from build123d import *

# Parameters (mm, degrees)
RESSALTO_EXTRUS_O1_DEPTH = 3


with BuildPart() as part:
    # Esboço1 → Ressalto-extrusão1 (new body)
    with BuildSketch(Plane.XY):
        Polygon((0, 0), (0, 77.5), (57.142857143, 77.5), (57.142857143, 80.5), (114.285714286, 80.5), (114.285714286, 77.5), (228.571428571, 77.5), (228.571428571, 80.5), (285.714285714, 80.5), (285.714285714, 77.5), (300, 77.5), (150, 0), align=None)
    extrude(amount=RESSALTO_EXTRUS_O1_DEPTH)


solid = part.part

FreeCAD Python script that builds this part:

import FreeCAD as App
import Part
import Sketcher
from FreeCAD import Vector

doc = App.newDocument("Part")
params = doc.addObject("Spreadsheet::Sheet", "Params")
for row, (alias, value) in enumerate([
    ("sketch1_width", "150 mm"),
    ("sketch1_height", "3 mm"),
    ("sketch1_height2", "77.5 mm"),
    ("pad1_length", "3 mm"),
], start=1):
    params.set(f"A{row}", alias)
    params.set(f"B{row}", "=" + value)
    params.setAlias(f"B{row}", alias)

body = doc.addObject("PartDesign::Body", "Body")

# Sketch on XY plane
sketch1 = body.newObject("Sketcher::SketchObject", "Sketch")
sketch1.AttachmentSupport = (doc.getObject("XY_Plane"), [""])
sketch1.MapMode = "FlatFace"
sketch1.addGeometry(Part.LineSegment(Vector(0, 77.5, 0), Vector(0, 0, 0)), False)
sketch1.addGeometry(Part.LineSegment(Vector(0, 0, 0), Vector(150, 0, 0)), False)
sketch1.addGeometry(Part.LineSegment(Vector(150, 0, 0), Vector(300, 77.5, 0)), False)
sketch1.addGeometry(Part.LineSegment(Vector(300, 77.5, 0), Vector(285.7, 77.5, 0)), False)
sketch1.addGeometry(Part.LineSegment(Vector(285.7, 77.5, 0), Vector(285.7, 80.5, 0)), False)
sketch1.addGeometry(Part.LineSegment(Vector(285.7, 80.5, 0), Vector(228.6, 80.5, 0)), False)
sketch1.addGeometry(Part.LineSegment(Vector(228.6, 80.5, 0), Vector(228.6, 77.5, 0)), False)
sketch1.addGeometry(Part.LineSegment(Vector(228.6, 77.5, 0), Vector(114.3, 77.5, 0)), False)
sketch1.addGeometry(Part.LineSegment(Vector(114.3, 77.5, 0), Vector(114.3, 80.5, 0)), False)
sketch1.addGeometry(Part.LineSegment(Vector(114.3, 80.5, 0), Vector(57.1, 80.5, 0)), False)
sketch1.addGeometry(Part.LineSegment(Vector(57.1, 80.5, 0), Vector(57.1, 77.5, 0)), False)
sketch1.addGeometry(Part.LineSegment(Vector(57.1, 77.5, 0), Vector(0, 77.5, 0)), False)
sketch1.addConstraint(Sketcher.Constraint("Coincident", 0, 2, 1, 1))
sketch1.addConstraint(Sketcher.Constraint("Coincident", 1, 2, 2, 1))
sketch1.addConstraint(Sketcher.Constraint("Coincident", 2, 2, 3, 1))
sketch1.addConstraint(Sketcher.Constraint("Coincident", 3, 2, 4, 1))
sketch1.addConstraint(Sketcher.Constraint("Coincident", 4, 2, 5, 1))
sketch1.addConstraint(Sketcher.Constraint("Coincident", 5, 2, 6, 1))
sketch1.addConstraint(Sketcher.Constraint("Coincident", 6, 2, 7, 1))
sketch1.addConstraint(Sketcher.Constraint("Coincident", 7, 2, 8, 1))
sketch1.addConstraint(Sketcher.Constraint("Coincident", 8, 2, 9, 1))
sketch1.addConstraint(Sketcher.Constraint("Coincident", 9, 2, 10, 1))
sketch1.addConstraint(Sketcher.Constraint("Coincident", 10, 2, 11, 1))
sketch1.addConstraint(Sketcher.Constraint("Coincident", 11, 2, 0, 1))
sketch1.addConstraint(Sketcher.Constraint("Vertical", 0))
sketch1.addConstraint(Sketcher.Constraint("Horizontal", 1))
sketch1.addConstraint(Sketcher.Constraint("Horizontal", 3))
sketch1.addConstraint(Sketcher.Constraint("Vertical", 4))
sketch1.addConstraint(Sketcher.Constraint("Horizontal", 5))
sketch1.addConstraint(Sketcher.Constraint("Vertical", 6))
sketch1.addConstraint(Sketcher.Constraint("Horizontal", 7))
sketch1.addConstraint(Sketcher.Constraint("Vertical", 8))
sketch1.addConstraint(Sketcher.Constraint("Horizontal", 9))
sketch1.addConstraint(Sketcher.Constraint("Vertical", 10))
sketch1.addConstraint(Sketcher.Constraint("Horizontal", 11))
sketch1.addConstraint(Sketcher.Constraint("Coincident", 0, 2, -1, 1))
sketch1.addConstraint(Sketcher.Constraint("Horizontal", 3, 2, 6, 2))
sketch1.addConstraint(Sketcher.Constraint("Horizontal", 5, 2, 8, 2))
sketch1.addConstraint(Sketcher.Constraint("Horizontal", 7, 2, 10, 2))
sketch1.addConstraint(Sketcher.Constraint("Equal", 5, 9))
sketch1.addConstraint(Sketcher.Constraint("Equal", 9, 11))
sketch1.addConstraint(Sketcher.Constraint("DistanceX", 1, 1, 1, 2, 150.0))
sketch1.addConstraint(Sketcher.Constraint("DistanceY", 4, 1, 4, 2, 3.0))
sketch1.addConstraint(Sketcher.Constraint("DistanceY", 0, 2, 0, 1, 77.5))
sketch1.addConstraint(Sketcher.Constraint("DistanceX", -1, 1, 2, 2, 300.0))
sketch1.addConstraint(Sketcher.Constraint("DistanceX", 3, 2, 3, 1, 14.285714))
sketch1.addConstraint(Sketcher.Constraint("DistanceX", 5, 2, 5, 1, 57.142857))
sketch1.setExpression("Constraints[29]", "Params.sketch1_width")
sketch1.setExpression("Constraints[30]", "Params.sketch1_height")
sketch1.setExpression("Constraints[31]", "Params.sketch1_height2")
pad1 = body.newObject("PartDesign::Pad", "Pad")
pad1.Profile = sketch1
pad1.setExpression("Length", "Params.pad1_length")

doc.recompute()
